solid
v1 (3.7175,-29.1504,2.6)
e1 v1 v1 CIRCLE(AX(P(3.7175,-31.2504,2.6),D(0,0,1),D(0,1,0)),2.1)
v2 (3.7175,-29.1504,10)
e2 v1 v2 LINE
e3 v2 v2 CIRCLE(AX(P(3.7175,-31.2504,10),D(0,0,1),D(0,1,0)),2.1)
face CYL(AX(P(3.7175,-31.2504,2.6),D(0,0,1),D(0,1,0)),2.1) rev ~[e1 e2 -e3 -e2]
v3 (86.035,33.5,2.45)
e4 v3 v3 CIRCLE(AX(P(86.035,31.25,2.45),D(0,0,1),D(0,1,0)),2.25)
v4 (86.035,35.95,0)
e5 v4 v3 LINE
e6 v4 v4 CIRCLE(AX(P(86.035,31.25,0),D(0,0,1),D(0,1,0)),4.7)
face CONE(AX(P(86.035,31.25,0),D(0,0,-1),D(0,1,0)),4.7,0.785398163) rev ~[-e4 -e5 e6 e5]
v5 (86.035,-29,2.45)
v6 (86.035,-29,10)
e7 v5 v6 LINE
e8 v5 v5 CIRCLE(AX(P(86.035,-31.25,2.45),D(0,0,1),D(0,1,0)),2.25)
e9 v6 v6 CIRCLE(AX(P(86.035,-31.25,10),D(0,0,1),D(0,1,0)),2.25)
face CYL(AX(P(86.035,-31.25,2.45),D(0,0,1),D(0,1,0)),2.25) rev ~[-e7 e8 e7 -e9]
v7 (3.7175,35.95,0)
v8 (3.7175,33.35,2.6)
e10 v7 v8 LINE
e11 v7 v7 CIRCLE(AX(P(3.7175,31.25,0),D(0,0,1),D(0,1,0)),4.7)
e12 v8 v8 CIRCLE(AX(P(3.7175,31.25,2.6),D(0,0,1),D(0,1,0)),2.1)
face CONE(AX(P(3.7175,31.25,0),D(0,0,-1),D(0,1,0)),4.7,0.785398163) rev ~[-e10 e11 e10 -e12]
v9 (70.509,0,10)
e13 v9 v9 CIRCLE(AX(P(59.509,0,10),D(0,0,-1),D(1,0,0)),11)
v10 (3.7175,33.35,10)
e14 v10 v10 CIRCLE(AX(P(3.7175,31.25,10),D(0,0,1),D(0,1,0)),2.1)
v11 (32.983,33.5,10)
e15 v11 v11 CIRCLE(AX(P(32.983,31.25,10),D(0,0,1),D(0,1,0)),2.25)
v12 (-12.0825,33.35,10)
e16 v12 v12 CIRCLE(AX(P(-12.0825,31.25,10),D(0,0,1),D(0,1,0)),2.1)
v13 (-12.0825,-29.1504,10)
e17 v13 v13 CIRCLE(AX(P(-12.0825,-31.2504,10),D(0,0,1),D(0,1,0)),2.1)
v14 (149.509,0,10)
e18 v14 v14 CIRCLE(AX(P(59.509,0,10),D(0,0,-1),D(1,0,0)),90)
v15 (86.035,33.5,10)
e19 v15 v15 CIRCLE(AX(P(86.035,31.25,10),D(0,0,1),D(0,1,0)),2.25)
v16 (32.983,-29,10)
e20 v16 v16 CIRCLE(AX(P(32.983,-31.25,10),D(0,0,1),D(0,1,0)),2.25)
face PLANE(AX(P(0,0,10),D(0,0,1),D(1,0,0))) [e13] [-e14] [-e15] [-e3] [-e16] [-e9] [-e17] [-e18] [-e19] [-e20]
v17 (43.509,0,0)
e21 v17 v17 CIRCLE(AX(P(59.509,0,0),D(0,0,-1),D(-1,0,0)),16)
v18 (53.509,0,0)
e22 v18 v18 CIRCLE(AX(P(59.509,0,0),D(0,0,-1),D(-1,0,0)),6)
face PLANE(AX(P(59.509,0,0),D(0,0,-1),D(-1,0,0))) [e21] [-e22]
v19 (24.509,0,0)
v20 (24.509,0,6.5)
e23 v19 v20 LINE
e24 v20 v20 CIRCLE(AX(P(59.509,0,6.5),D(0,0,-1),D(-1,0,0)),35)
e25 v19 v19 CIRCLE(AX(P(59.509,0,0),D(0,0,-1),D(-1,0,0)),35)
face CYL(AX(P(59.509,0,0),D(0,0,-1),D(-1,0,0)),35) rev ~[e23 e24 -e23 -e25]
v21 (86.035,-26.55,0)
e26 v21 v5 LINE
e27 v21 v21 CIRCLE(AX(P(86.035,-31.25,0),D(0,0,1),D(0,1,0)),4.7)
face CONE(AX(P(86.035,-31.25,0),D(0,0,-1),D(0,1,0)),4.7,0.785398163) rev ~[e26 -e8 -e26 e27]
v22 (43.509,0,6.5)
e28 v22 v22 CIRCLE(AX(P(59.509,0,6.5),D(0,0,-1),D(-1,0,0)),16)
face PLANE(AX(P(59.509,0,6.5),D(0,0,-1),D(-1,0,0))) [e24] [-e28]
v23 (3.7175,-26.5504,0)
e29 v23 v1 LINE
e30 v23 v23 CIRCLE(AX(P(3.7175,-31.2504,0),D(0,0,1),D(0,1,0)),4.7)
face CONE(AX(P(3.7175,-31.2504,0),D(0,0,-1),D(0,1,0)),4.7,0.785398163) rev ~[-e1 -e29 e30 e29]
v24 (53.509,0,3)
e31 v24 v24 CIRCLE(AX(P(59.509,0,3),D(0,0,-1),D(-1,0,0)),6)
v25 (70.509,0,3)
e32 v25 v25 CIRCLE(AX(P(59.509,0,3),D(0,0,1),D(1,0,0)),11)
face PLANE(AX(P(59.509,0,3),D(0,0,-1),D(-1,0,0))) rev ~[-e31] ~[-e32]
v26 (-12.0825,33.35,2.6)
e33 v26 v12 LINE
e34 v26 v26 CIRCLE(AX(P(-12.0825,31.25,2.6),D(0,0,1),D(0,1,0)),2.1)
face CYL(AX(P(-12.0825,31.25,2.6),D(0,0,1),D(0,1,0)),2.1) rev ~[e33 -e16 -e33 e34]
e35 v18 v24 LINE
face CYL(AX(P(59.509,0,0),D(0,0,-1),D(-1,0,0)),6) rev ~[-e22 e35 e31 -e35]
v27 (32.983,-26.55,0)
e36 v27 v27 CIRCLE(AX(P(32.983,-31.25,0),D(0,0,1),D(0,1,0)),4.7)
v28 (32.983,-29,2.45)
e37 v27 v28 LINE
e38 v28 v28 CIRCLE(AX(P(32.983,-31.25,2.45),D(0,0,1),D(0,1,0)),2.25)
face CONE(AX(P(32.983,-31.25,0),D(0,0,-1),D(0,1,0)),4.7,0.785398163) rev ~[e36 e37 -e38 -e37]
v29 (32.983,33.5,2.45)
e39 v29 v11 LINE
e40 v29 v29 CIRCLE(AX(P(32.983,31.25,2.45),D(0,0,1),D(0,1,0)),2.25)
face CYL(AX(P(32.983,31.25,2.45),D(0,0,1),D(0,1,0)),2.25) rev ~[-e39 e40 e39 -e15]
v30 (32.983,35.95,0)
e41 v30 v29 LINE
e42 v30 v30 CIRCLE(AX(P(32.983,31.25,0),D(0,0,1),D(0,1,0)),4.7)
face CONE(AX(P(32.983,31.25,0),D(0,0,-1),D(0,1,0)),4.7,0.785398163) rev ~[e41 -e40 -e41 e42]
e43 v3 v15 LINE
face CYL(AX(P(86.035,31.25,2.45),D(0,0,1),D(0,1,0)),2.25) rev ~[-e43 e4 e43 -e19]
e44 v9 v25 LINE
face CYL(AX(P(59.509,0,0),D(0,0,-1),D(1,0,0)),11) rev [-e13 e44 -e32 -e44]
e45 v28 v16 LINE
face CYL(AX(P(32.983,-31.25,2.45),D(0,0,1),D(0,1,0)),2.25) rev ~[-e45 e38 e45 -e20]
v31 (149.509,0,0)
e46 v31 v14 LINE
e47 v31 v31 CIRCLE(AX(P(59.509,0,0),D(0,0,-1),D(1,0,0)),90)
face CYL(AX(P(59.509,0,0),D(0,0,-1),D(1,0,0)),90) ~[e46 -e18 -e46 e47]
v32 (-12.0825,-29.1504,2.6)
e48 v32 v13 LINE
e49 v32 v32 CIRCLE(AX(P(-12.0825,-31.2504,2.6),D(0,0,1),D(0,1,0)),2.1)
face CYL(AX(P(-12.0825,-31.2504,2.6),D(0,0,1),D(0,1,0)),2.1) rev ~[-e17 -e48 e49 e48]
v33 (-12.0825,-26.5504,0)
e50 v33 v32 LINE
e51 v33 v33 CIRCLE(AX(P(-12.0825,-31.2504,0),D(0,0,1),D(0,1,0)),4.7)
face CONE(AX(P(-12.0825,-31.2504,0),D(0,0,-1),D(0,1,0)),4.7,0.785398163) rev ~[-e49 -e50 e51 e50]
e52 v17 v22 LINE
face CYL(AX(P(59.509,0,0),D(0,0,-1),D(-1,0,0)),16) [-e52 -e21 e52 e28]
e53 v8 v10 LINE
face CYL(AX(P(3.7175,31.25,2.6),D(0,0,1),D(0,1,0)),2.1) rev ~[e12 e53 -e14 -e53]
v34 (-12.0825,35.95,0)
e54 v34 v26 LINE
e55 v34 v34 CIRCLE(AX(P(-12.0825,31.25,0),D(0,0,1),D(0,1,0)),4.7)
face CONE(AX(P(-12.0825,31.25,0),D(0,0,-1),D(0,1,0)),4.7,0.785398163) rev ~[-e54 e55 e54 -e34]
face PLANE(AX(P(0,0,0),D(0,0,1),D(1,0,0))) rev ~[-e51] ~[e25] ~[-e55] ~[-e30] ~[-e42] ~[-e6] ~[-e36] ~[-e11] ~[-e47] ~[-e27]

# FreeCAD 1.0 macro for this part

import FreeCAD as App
import Part
import Sketcher

doc = App.newDocument("Part")
body = doc.addObject("PartDesign::Body", "Body")

sketch1 = body.newObject("Sketcher::SketchObject", "Sketch")
sketch1.AttachmentSupport = (doc.getObject("XY_Plane"), [""])
sketch1.MapMode = "FlatFace"
sketch1.addGeometry([
    Part.Circle(App.Vector(60, 0, 0), App.Vector(0, 0, 1), 90),
    Part.Circle(App.Vector(60, 0, 0), App.Vector(0, 0, 1), 11),
], False)
sketch1.addConstraint([
    Sketcher.Constraint("Coincident", 1, 3, 0, 3),
    Sketcher.Constraint("PointOnObject", 0, 3, -1),
    Sketcher.Constraint("Diameter", 0, 180.0),
    Sketcher.Constraint("Diameter", 1, 22.0),
    Sketcher.Constraint("DistanceX", -1, 1, 0, 3, 59.509),
])
pad1 = body.newObject("PartDesign::Pad", "Pad")
pad1.Profile = sketch1
pad1.Length = 10

sketch2 = body.newObject("Sketcher::SketchObject", "Sketch001")
sketch2.AttachmentSupport = (doc.getObject("XY_Plane"), [""])
sketch2.MapMode = "FlatFace"
sketch2.addGeometry([
    Part.Circle(App.Vector(60, 0, 0), App.Vector(0, 0, 1), 35),
    Part.Circle(App.Vector(60, 0, 0), App.Vector(0, 0, 1), 16),
    Part.Circle(App.Vector(60, 0, 0), App.Vector(0, 0, 1), 11),
], False)
sketch2.addConstraint([
    Sketcher.Constraint("Coincident", 1, 3, 0, 3),
    Sketcher.Constraint("Coincident", 2, 3, 0, 3),
    Sketcher.Constraint("PointOnObject", 0, 3, -1),
    Sketcher.Constraint("Diameter", 0, 70.0),
    Sketcher.Constraint("Diameter", 1, 32.0),
    Sketcher.Constraint("Diameter", 2, 22.0),
    Sketcher.Constraint("DistanceX", -1, 1, 0, 3, 59.509),
])
pocket1 = body.newObject("PartDesign::Pocket", "Pocket")
pocket1.Profile = sketch2
pocket1.Length = 6.5
pocket1.Reversed = True

sketch3 = body.newObject("Sketcher::SketchObject", "Sketch002")
sketch3.AttachmentSupport = (doc.getObject("XY_Plane"), [""])
sketch3.MapMode = "FlatFace"
sketch3.addGeometry([
    Part.Circle(App.Vector(60, 0, 0), App.Vector(0, 0, 1), 11),
    Part.Circle(App.Vector(60, 0, 0), App.Vector(0, 0, 1), 6),
], False)
sketch3.addConstraint([
    Sketcher.Constraint("Coincident", 1, 3, 0, 3),
    Sketcher.Constraint("PointOnObject", 0, 3, -1),
    Sketcher.Constraint("Diameter", 1, 12.0),
    Sketcher.Constraint("Diameter", 0, 22.0),
    Sketcher.Constraint("DistanceX", -1, 1, 0, 3, 59.509),
])
pad2 = body.newObject("PartDesign::Pad", "Pad001")
pad2.Profile = sketch3
pad2.Length = 3

sketch4 = body.newObject("Sketcher::SketchObject", "Sketch003")
sketch4.AttachmentSupport = (doc.getObject("XY_Plane"), [""])
sketch4.MapMode = "FlatFace"
sketch4.addGeometry([
    Part.Circle(App.Vector(-12.1, 31.2, 0), App.Vector(0, 0, 1), 2.1),
    Part.Circle(App.Vector(3.7, 31.2, 0), App.Vector(0, 0, 1), 2.1),
    Part.Circle(App.Vector(-12.1, -31.3, 0), App.Vector(0, 0, 1), 2.1),
    Part.Circle(App.Vector(3.7, -31.3, 0), App.Vector(0, 0, 1), 2.1),
], False)
sketch4.addConstraint([
    Sketcher.Constraint("Equal", 0, 1),
    Sketcher.Constraint("Equal", 1, 2),
    Sketcher.Constraint("Equal", 2, 3),
    Sketcher.Constraint("Symmetric", 0, 3, 2, 3, -1),
    Sketcher.Constraint("Symmetric", 1, 3, 3, 3, -1),
    Sketcher.Constraint("Horizontal", 0, 3, 1, 3),
    Sketcher.Constraint("Diameter", 0, 4.2),
    Sketcher.Constraint("DistanceX", 0, 3, 1, 3, 15.8),
    Sketcher.Constraint("DistanceY", -1, 1, 0, 3, 31.25),
    Sketcher.Constraint("DistanceX", 0, 3, -1, 1, 12.0825),
])
doc.recompute()
hole = body.newObject("PartDesign::Hole", "Hole")
hole.Profile = sketch4
hole.ThreadType = "None"
hole.Diameter = 4.2
hole.DepthType = "ThroughAll"
hole.HoleCutType = "Countersink"
hole.HoleCutDiameter = 9.4
hole.HoleCutCountersinkAngle = 90
hole.Reversed = True

sketch5 = body.newObject("Sketcher::SketchObject", "Sketch004")
sketch5.AttachmentSupport = (doc.getObject("XY_Plane"), [""])
sketch5.MapMode = "FlatFace"
sketch5.addGeometry([
    Part.Circle(App.Vector(86, 31.2, 0), App.Vector(0, 0, 1), 2.2),
    Part.Circle(App.Vector(86, -31.2, 0), App.Vector(0, 0, 1), 2.2),
    Part.Circle(App.Vector(33, -31.2, 0), App.Vector(0, 0, 1), 2.2),
    Part.Circle(App.Vector(33, 31.2, 0), App.Vector(0, 0, 1), 2.2),
], False)
sketch5.addConstraint([
    Sketcher.Constraint("Equal", 0, 1),
    Sketcher.Constraint("Equal", 1, 2),
    Sketcher.Constraint("Equal", 2, 3),
    Sketcher.Constraint("Symmetric", 0, 3, 1, 3, -1),
    Sketcher.Constraint("Symmetric", 2, 3, 3, 3, -1),
    Sketcher.Constraint("Horizontal", 1, 3, 2, 3),
    Sketcher.Constraint("Diameter", 0, 4.5),
    Sketcher.Constraint("DistanceY", 1, 3, 0, 3, 62.5),
    Sketcher.Constraint("DistanceX", -1, 1, 0, 3, 86.035),
    Sketcher.Constraint("DistanceX", -1, 1, 2, 3, 32.983),
])
doc.recompute()
hole2 = body.newObject("PartDesign::Hole", "Hole001")
hole2.Profile = sketch5
hole2.ThreadType = "None"
hole2.Diameter = 4.5
hole2.DepthType = "Dimension"
hole2.Depth = 14.2
hole2.DrillPoint = "Angled"
hole2.DrillPointAngle = 118
hole2.HoleCutType = "Countersink"
hole2.HoleCutDiameter = 9.4
hole2.HoleCutCountersinkAngle = 90
hole2.Reversed = True

doc.recompute()
